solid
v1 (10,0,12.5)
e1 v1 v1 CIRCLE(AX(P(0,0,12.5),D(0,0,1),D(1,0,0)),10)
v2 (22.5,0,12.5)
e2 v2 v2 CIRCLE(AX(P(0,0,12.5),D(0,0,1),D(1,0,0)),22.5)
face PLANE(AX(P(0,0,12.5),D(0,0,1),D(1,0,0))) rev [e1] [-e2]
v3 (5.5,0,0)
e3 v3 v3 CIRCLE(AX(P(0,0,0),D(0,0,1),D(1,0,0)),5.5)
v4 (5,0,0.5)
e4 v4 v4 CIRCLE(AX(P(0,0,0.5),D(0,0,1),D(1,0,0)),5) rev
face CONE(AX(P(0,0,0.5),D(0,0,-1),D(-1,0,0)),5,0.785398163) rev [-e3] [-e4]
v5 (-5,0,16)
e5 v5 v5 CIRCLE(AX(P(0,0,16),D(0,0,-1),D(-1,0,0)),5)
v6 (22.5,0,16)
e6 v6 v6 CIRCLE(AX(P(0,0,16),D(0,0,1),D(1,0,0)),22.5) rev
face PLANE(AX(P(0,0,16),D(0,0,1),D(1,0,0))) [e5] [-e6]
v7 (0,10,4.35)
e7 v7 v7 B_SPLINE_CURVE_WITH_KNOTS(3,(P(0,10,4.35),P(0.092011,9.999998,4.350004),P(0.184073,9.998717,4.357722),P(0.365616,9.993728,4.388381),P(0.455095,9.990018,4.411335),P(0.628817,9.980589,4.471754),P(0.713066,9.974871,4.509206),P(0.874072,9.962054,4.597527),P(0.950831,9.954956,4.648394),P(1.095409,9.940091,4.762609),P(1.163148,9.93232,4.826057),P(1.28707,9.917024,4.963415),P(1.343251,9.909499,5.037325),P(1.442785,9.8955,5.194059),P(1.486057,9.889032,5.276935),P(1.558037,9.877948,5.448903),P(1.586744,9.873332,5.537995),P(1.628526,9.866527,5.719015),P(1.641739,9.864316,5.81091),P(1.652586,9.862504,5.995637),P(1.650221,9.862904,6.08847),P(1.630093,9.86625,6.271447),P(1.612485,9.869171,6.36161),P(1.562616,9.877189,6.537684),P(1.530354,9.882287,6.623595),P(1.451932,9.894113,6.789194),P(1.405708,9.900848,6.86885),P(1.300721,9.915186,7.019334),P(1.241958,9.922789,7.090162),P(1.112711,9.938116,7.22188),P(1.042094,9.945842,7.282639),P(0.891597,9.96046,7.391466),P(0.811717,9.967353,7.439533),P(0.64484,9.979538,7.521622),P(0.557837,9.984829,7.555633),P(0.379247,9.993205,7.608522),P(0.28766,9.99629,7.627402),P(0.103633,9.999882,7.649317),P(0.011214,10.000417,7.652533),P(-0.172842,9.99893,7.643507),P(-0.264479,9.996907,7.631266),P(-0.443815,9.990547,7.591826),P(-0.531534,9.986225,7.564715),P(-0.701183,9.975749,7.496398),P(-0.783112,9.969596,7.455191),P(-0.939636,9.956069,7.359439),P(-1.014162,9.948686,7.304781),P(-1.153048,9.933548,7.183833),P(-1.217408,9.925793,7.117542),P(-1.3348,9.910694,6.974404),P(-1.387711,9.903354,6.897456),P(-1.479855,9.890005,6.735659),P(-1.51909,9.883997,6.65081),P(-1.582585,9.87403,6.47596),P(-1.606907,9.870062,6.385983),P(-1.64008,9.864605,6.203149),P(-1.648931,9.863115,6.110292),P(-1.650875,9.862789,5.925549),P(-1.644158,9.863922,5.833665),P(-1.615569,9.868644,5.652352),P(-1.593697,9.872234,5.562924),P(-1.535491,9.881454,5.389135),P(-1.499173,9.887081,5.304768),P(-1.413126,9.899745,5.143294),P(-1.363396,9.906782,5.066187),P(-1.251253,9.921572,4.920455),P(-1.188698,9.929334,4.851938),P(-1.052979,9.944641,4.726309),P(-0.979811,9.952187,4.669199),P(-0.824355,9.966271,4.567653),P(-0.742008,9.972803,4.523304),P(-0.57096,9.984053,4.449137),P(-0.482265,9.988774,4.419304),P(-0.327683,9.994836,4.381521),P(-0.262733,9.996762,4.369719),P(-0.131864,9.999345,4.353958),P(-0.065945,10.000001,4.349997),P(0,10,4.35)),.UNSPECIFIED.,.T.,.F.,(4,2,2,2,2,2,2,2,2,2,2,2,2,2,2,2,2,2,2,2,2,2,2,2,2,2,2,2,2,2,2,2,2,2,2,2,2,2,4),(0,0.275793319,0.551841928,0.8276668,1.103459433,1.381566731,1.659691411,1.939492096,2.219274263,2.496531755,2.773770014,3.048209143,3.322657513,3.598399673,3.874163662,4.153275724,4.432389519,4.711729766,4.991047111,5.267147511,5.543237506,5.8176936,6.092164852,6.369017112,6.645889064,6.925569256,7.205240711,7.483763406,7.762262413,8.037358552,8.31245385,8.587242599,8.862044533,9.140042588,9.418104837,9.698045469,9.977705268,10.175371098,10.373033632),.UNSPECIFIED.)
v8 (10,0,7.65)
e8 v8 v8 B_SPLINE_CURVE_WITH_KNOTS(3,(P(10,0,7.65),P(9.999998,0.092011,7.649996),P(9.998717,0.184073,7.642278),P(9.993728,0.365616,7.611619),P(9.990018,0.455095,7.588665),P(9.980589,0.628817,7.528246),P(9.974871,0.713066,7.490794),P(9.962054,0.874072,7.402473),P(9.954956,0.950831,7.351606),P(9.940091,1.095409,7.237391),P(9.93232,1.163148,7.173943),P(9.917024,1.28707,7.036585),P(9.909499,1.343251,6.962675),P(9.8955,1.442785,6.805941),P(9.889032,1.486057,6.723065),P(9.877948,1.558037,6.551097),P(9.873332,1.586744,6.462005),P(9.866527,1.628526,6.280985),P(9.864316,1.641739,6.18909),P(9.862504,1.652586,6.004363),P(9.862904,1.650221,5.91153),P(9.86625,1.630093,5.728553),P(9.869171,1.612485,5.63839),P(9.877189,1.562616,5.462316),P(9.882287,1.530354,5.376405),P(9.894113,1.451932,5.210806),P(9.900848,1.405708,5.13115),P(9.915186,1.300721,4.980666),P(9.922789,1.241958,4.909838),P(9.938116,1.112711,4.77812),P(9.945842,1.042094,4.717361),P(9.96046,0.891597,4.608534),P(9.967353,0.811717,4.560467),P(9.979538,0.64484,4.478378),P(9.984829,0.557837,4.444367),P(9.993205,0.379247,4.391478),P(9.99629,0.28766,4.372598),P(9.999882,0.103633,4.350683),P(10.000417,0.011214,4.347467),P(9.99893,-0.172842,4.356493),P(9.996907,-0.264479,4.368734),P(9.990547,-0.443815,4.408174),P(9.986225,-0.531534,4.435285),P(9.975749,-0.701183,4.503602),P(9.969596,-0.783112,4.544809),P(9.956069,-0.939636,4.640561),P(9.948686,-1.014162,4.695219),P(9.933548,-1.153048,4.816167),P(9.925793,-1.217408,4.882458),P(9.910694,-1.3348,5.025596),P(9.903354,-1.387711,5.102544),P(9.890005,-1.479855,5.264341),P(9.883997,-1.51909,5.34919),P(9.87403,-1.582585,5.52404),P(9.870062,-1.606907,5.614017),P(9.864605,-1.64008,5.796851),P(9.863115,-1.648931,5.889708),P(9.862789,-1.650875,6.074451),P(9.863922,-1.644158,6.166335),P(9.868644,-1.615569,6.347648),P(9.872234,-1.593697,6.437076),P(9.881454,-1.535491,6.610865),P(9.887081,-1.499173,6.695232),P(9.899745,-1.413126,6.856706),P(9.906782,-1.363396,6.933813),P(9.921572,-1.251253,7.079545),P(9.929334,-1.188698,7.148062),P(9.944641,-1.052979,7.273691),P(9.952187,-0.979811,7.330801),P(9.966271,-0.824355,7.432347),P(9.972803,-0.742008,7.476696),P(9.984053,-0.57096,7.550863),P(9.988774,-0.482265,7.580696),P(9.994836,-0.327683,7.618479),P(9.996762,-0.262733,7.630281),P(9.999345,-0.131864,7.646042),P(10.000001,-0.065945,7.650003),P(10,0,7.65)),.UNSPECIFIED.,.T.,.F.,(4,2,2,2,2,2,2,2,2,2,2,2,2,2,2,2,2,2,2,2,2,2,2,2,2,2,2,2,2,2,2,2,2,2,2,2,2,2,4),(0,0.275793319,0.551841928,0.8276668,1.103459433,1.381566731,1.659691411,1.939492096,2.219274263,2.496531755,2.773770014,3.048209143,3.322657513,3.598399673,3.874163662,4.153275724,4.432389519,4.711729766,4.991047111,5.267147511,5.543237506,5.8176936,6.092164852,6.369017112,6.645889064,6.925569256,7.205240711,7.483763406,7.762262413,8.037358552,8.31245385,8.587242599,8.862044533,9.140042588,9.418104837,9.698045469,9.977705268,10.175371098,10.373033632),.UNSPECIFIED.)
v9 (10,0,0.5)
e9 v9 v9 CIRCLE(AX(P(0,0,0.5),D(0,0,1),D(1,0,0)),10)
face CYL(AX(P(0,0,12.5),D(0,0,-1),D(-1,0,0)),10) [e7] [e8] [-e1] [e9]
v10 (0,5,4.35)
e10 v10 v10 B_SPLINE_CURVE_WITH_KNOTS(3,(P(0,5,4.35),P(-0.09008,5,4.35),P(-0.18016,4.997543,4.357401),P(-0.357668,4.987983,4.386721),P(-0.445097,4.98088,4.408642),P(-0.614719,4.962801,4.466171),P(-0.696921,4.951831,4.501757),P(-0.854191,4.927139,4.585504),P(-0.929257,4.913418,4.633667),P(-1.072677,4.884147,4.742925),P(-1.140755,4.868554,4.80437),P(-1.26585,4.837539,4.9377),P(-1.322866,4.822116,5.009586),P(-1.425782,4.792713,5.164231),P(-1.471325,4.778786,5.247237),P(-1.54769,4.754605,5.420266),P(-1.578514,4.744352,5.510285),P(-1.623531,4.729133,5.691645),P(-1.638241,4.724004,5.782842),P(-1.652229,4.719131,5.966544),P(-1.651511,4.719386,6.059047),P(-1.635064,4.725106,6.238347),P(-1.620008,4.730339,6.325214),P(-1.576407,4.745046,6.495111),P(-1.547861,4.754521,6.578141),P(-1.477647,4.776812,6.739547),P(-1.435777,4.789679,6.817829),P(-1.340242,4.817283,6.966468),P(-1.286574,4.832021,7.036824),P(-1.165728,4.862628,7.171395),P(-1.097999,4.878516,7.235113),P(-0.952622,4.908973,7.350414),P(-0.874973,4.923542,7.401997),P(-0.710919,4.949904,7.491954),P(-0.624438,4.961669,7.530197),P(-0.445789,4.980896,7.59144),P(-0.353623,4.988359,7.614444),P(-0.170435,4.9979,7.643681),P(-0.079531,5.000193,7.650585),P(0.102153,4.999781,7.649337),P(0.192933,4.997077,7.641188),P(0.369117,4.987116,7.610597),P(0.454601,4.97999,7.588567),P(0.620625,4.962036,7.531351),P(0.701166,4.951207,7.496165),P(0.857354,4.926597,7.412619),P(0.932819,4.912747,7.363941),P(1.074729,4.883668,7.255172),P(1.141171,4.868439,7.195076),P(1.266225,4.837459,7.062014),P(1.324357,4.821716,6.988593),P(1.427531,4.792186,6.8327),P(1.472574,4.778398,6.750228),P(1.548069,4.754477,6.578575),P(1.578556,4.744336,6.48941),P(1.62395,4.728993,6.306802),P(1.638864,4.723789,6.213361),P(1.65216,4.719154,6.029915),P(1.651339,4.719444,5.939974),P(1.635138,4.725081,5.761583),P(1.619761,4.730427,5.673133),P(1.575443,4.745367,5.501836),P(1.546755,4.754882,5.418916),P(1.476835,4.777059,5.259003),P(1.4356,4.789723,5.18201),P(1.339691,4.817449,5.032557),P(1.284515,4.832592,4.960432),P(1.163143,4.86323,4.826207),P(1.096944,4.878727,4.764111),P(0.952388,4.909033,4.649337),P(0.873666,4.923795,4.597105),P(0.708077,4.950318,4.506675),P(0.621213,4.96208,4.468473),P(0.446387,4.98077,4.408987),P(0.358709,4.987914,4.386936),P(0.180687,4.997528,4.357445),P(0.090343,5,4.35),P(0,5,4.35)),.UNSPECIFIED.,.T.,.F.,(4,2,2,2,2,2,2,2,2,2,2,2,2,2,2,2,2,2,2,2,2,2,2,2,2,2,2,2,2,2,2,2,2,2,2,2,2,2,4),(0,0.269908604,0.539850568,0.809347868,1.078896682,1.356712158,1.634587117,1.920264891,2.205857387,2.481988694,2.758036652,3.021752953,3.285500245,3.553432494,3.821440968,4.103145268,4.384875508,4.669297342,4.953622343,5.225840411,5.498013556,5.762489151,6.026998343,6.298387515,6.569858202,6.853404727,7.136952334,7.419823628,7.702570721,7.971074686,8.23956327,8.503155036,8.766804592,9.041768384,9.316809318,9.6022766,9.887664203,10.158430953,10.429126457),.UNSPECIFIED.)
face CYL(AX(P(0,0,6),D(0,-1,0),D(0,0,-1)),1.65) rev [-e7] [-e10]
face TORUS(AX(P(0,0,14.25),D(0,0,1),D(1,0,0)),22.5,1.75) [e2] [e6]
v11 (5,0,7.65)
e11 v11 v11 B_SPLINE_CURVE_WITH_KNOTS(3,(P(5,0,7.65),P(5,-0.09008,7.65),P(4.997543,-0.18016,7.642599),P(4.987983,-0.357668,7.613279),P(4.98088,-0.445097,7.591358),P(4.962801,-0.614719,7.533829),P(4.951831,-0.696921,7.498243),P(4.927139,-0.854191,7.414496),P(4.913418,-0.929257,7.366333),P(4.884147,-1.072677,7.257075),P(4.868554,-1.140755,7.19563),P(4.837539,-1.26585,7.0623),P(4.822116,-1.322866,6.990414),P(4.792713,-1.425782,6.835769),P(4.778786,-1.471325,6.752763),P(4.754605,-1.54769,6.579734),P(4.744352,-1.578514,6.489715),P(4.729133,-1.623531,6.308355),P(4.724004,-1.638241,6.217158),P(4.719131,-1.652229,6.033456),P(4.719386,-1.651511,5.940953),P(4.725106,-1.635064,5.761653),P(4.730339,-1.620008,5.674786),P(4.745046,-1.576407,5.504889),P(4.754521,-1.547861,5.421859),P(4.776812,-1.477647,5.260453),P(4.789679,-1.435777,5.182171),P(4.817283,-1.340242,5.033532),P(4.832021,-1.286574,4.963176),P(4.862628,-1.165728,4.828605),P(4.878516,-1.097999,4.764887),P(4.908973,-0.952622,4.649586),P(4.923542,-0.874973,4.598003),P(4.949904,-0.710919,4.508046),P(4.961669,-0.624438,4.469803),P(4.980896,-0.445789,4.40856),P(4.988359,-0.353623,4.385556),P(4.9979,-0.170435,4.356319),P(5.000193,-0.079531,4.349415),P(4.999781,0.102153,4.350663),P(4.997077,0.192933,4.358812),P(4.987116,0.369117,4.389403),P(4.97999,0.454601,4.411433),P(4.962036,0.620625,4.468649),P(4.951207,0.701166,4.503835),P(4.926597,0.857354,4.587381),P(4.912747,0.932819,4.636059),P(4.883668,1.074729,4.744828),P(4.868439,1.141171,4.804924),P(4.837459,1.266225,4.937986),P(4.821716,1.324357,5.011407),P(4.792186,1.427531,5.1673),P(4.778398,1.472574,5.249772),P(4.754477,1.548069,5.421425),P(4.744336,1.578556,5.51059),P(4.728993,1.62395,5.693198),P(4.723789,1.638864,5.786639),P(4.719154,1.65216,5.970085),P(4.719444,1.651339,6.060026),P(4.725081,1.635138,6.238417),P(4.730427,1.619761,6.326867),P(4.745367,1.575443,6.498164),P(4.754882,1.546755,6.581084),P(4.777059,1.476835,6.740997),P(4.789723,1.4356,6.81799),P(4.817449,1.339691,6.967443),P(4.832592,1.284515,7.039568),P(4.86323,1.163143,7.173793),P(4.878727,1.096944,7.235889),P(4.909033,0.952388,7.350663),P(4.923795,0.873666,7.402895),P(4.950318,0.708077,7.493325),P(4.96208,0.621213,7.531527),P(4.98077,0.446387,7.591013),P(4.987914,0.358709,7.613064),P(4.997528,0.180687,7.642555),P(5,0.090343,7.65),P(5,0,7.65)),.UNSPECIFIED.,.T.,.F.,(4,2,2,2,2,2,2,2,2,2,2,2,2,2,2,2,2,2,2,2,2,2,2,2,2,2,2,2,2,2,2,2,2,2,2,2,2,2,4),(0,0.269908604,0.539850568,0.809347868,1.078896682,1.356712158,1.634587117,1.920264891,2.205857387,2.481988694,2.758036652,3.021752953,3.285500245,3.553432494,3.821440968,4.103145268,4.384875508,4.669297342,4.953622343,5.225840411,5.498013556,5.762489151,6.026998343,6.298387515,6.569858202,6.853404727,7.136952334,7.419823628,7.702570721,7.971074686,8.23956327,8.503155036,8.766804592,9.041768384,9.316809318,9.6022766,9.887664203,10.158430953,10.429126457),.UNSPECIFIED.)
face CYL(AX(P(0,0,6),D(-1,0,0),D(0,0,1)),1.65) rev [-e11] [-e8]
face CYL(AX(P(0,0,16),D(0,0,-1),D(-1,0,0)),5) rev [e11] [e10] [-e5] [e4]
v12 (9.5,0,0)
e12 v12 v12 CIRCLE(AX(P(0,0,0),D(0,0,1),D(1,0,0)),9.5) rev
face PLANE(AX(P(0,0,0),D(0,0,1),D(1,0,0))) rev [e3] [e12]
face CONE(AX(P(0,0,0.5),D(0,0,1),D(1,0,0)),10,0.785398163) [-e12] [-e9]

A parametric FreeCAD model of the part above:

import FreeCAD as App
import Part
import Sketcher

V = App.Vector


def edges_at(feature, points):
    """Names of the edges that pass closest to the given points."""
    edges = feature.Shape.Edges
    near = lambda p: min(range(len(edges)), key=lambda i: edges[i].distToShape(Part.Vertex(*p))[0])
    return sorted({f"Edge{near(p) + 1}" for p in points})


def add_polygon(sketch, points):
    """Adds a closed chain of lines whose ends are joined by coincident constraints."""
    first, n = sketch.GeometryCount, len(points)
    for a, b in zip(points, points[1:] + points[:1]):
        sketch.addGeometry(Part.LineSegment(App.Vector(*a, 0), App.Vector(*b, 0)), False)
    for i in range(n):
        sketch.addConstraint(Sketcher.Constraint("Coincident", first + i, 2, first + (i + 1) % n, 1))

doc = App.newDocument("Part")
body = doc.addObject("PartDesign::Body", "Body")

sketch1 = doc.addObject("Sketcher::SketchObject", "Sketch")
body.addObject(sketch1)
sketch1.AttachmentSupport = (doc.XY_Plane, [""])
sketch1.MapMode = "FlatFace"
sketch1.addGeometry(Part.Circle(V(0, 0, 0), V(0, 0, 1), 10), False)
sketch1.addConstraint([
    Sketcher.Constraint("Coincident", 0, 3, -1, 1),
    Sketcher.Constraint("Diameter", 0, 20.0),
])
pad1 = doc.addObject("PartDesign::Pad", "Pad")
body.addObject(pad1)
pad1.Profile = sketch1
pad1.Length = 12.5

sketch2 = doc.addObject("Sketcher::SketchObject", "Sketch001")
body.addObject(sketch2)
sketch2.AttachmentSupport = (doc.XY_Plane, [""])
sketch2.MapMode = "FlatFace"
sketch2.AttachmentOffset = App.Placement(V(0, 0, 12.5), App.Rotation())
sketch2.addGeometry(Part.Circle(V(0, 0, 0), V(0, 0, 1), 22.5), False)
sketch2.addConstraint([
    Sketcher.Constraint("Coincident", 0, 3, -1, 1),
    Sketcher.Constraint("Diameter", 0, 45.0),
])
pad2 = doc.addObject("PartDesign::Pad", "Pad001")
body.addObject(pad2)
pad2.Profile = sketch2
pad2.Length = 3.5

sketch3 = doc.addObject("Sketcher::SketchObject", "Sketch002")
body.addObject(sketch3)
sketch3.AttachmentSupport = (doc.XY_Plane, [""])
sketch3.MapMode = "FlatFace"
sketch3.addGeometry(Part.Circle(V(0, 0, 0), V(0, 0, 1), 5), False)
sketch3.addConstraint([
    Sketcher.Constraint("Coincident", 0, 3, -1, 1),
    Sketcher.Constraint("Diameter", 0, 10.0),
])
pocket1 = doc.addObject("PartDesign::Pocket", "Pocket")
body.addObject(pocket1)
pocket1.Profile = sketch3
pocket1.Type = "ThroughAll"
pocket1.Reversed = True

sketch4 = doc.addObject("Sketcher::SketchObject", "Sketch003")
body.addObject(sketch4)
sketch4.AttachmentSupport = (doc.YZ_Plane, [""])
sketch4.MapMode = "FlatFace"
add_polygon(sketch4, [(24.25, 6), (0, 6), (0, 4.35), (24.25, 4.35)])
sketch4.addGeometry(Part.LineSegment(V(0, 6, 0), V(24.25, 6, 0)), True)
sketch4.addConstraint([
    Sketcher.Constraint("Horizontal", 0),
    Sketcher.Constraint("Vertical", 1),
    Sketcher.Constraint("Horizontal", 2),
    Sketcher.Constraint("Vertical", 3),
    Sketcher.Constraint("Horizontal", 4),
    Sketcher.Constraint("Coincident", 4, 1, 0, 2),
    Sketcher.Constraint("PointOnObject", 0, 2, -2),
    Sketcher.Constraint("Vertical", 2, 2, 4, 2),
    Sketcher.Constraint("DistanceY", -1, 1, 0, 2, 6.0),
    Sketcher.Constraint("DistanceX", 0, 2, 0, 1, 24.25),
    Sketcher.Constraint("DistanceY", 1, 2, 1, 1, 1.65),
])
groove = doc.addObject("PartDesign::Groove", "Groove")
body.addObject(groove)
groove.Profile = sketch4
groove.ReferenceAxis = (sketch4, ["Axis0"])
groove.Angle = 360
doc.recompute()

chamfer = doc.addObject("PartDesign::Chamfer", "Chamfer")
body.addObject(chamfer)
chamfer.Base = (groove, edges_at(groove, [(5, 0, 0), (-10, 0, 0)]))
chamfer.Size = 0.5

sketch5 = doc.addObject("Sketcher::SketchObject", "Sketch004")
body.addObject(sketch5)
sketch5.AttachmentSupport = (doc.XZ_Plane, [""])
sketch5.MapMode = "FlatFace"
sketch5.addGeometry(Part.Circle(V(-22.5, 14.25, 0), V(0, 0, 1), 1.75), False)
sketch5.addConstraint([
    Sketcher.Constraint("Diameter", 0, 3.5),
    Sketcher.Constraint("DistanceX", 0, 3, -1, 1, 22.5),
    Sketcher.Constraint("DistanceY", -1, 1, 0, 3, 14.25),
])
revolution = doc.addObject("PartDesign::Revolution", "Revolution")
body.addObject(revolution)
revolution.Profile = sketch5
revolution.ReferenceAxis = (sketch5, ["V_Axis"])
revolution.Angle = 360
doc.recompute()

polarpattern = doc.addObject("PartDesign::PolarPattern", "PolarPattern")
body.addObject(polarpattern)
polarpattern.Originals = [groove]
polarpattern.Axis = (doc.Z_Axis, [""])
polarpattern.Angle = 90
polarpattern.Occurrences = 2
polarpattern.Reversed = True
body.Tip = polarpattern

doc.recompute()
